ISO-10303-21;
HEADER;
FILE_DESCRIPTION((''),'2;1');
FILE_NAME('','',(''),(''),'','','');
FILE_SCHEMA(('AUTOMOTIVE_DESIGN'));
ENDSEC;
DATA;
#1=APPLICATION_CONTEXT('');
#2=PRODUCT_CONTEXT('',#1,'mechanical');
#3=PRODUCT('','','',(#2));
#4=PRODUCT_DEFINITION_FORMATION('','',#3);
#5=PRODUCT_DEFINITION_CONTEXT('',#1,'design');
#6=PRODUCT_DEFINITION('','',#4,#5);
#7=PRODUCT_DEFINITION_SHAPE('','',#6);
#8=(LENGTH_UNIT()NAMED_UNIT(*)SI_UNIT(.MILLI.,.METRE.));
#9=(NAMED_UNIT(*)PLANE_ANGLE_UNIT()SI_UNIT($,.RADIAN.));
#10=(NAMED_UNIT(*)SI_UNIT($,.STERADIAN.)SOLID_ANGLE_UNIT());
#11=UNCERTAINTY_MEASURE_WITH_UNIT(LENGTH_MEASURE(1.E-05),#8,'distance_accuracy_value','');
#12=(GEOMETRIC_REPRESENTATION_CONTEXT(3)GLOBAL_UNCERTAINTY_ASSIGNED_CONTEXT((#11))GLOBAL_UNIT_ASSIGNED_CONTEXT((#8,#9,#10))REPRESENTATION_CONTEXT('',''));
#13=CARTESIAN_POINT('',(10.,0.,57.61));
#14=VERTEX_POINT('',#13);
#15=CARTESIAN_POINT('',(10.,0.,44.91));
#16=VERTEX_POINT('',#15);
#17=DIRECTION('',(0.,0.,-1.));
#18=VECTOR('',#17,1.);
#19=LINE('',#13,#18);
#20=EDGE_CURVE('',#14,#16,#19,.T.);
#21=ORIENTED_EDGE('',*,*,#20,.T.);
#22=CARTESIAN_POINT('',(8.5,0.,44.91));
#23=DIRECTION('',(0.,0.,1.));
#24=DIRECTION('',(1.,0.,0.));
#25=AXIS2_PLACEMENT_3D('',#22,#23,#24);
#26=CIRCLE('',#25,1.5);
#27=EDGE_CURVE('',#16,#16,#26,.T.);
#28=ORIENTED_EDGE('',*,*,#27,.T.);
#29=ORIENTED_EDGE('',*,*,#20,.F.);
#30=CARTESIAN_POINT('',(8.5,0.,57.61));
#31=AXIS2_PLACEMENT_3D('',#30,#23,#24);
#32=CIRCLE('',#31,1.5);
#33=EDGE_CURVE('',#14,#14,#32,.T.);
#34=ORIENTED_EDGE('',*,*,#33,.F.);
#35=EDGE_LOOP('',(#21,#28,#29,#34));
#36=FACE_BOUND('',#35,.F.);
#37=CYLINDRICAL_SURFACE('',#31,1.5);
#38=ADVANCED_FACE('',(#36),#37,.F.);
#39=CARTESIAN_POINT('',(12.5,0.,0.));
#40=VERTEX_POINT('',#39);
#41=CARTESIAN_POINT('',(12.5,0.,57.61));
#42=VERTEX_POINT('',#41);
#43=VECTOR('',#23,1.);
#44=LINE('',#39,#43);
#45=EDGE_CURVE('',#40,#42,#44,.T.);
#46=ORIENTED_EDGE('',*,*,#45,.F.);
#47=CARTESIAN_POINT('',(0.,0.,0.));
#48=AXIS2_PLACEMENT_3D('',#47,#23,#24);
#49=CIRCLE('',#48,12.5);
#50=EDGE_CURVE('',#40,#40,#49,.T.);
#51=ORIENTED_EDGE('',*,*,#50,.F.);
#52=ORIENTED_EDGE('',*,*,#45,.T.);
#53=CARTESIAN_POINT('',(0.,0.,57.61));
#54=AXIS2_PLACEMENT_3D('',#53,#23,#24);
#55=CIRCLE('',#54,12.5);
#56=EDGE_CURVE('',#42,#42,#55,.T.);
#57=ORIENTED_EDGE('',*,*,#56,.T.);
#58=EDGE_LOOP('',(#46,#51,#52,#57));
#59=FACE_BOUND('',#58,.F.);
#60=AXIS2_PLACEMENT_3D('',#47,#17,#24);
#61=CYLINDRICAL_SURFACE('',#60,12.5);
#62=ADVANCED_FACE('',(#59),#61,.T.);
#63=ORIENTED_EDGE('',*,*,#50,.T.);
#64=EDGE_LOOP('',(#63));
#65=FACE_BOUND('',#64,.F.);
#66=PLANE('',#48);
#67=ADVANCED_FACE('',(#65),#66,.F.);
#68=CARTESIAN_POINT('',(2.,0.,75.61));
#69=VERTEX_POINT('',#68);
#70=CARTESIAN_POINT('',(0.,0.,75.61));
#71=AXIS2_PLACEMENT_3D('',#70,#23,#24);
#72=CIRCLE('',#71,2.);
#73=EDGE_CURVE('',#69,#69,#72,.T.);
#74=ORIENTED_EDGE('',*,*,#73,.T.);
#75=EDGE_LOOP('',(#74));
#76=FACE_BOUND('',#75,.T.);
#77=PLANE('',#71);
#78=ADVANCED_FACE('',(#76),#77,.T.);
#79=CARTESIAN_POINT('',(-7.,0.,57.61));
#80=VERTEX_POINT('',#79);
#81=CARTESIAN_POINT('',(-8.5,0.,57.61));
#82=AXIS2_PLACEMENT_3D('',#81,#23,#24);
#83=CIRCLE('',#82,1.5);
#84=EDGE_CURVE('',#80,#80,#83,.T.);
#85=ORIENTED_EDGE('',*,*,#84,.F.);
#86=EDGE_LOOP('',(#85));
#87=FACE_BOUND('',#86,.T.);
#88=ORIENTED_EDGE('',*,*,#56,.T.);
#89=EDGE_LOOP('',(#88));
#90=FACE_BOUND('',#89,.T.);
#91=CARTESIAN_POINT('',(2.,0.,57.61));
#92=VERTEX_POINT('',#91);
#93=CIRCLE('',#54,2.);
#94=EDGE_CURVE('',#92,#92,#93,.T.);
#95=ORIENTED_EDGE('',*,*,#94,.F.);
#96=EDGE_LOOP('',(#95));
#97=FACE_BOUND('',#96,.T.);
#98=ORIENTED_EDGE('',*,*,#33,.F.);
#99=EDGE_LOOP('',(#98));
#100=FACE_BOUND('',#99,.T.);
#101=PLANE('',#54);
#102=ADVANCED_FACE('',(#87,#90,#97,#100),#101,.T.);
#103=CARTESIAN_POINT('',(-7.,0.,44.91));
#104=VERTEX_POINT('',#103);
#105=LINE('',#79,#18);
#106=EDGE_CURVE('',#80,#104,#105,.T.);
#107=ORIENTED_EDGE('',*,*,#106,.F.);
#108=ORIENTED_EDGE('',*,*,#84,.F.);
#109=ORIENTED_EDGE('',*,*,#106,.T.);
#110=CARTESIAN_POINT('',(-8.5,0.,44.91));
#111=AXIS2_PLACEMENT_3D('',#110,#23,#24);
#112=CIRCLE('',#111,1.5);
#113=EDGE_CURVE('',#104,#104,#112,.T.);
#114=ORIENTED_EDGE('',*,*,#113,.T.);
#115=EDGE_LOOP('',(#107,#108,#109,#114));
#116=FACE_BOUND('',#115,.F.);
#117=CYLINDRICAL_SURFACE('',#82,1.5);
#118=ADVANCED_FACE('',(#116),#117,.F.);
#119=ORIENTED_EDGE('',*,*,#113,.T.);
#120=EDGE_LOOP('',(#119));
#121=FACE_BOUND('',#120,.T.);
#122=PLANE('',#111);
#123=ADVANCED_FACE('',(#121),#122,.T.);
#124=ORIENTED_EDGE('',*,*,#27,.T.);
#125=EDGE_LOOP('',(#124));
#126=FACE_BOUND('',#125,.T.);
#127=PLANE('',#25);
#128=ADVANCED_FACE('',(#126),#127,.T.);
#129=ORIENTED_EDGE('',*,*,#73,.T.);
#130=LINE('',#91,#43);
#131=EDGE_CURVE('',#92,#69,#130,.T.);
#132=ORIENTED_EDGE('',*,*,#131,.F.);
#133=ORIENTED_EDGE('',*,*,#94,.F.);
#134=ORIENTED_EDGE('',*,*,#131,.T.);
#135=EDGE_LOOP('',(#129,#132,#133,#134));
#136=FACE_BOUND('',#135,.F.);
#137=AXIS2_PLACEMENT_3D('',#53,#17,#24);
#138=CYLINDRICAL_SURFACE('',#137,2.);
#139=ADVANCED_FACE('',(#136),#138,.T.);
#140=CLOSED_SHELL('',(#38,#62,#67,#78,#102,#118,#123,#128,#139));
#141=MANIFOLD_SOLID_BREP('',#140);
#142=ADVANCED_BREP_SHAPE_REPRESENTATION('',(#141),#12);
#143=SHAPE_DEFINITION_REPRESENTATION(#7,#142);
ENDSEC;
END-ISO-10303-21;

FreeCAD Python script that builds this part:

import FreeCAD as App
import Part
import Sketcher
from FreeCAD import Vector
Q = App.Units.Quantity

doc = App.newDocument("Part")
body = doc.addObject("PartDesign::Body", "Body")

sketch1 = doc.addObject("Sketcher::SketchObject", "Sketch")
body.addObject(sketch1)
sketch1.AttachmentSupport = (doc.XY_Plane, [""])
sketch1.MapMode = "FlatFace"
sketch1.addGeometry(Part.Circle(Vector(0, 0, 0), Vector(0, 0, 1), 12), False)
sketch1.addConstraint(Sketcher.Constraint("Coincident", 0, 3, -1, 1))
sketch1.addConstraint(Sketcher.Constraint("Diameter", 0, Q("25 mm")))
pad1 = doc.addObject("PartDesign::Pad", "Pad")
body.addObject(pad1)
pad1.Profile = sketch1
pad1.Length = 57.61

sketch2 = doc.addObject("Sketcher::SketchObject", "Sketch001")
body.addObject(sketch2)
sketch2.AttachmentSupport = (doc.XY_Plane, [""])
sketch2.MapMode = "FlatFace"
sketch2.AttachmentOffset = App.Placement(Vector(0, 0, 57.61), App.Rotation())
sketch2.addGeometry(Part.Circle(Vector(0, 0, 0), Vector(0, 0, 1), 2), False)
sketch2.addConstraint(Sketcher.Constraint("Coincident", 0, 3, -1, 1))
sketch2.addConstraint(Sketcher.Constraint("Diameter", 0, Q("4 mm")))
pad2 = doc.addObject("PartDesign::Pad", "Pad001")
body.addObject(pad2)
pad2.Profile = sketch2
pad2.Length = 18

sketch3 = doc.addObject("Sketcher::SketchObject", "Sketch002")
body.addObject(sketch3)
sketch3.AttachmentSupport = (doc.XY_Plane, [""])
sketch3.MapMode = "FlatFace"
sketch3.AttachmentOffset = App.Placement(Vector(0, 0, 57.61), App.Rotation())
sketch3.addGeometry(Part.Circle(Vector(-8.5, 0, 0), Vector(0, 0, 1), 1.5), False)
sketch3.addGeometry(Part.Circle(Vector(8.5, 0, 0), Vector(0, 0, 1), 1.5), False)
sketch3.addConstraint(Sketcher.Constraint("Equal", 0, 1))
sketch3.addConstraint(Sketcher.Constraint("Symmetric", 0, 3, 1, 3, -1, 1))
sketch3.addConstraint(Sketcher.Constraint("PointOnObject", 0, 3, -1))
sketch3.addConstraint(Sketcher.Constraint("Diameter", 0, Q("3 mm")))
sketch3.addConstraint(Sketcher.Constraint("DistanceX", 0, 3, 1, 3, Q("17 mm")))
pocket1 = doc.addObject("PartDesign::Pocket", "Pocket")
body.addObject(pocket1)
pocket1.Profile = sketch3
pocket1.Length = 12.7

doc.recompute()
